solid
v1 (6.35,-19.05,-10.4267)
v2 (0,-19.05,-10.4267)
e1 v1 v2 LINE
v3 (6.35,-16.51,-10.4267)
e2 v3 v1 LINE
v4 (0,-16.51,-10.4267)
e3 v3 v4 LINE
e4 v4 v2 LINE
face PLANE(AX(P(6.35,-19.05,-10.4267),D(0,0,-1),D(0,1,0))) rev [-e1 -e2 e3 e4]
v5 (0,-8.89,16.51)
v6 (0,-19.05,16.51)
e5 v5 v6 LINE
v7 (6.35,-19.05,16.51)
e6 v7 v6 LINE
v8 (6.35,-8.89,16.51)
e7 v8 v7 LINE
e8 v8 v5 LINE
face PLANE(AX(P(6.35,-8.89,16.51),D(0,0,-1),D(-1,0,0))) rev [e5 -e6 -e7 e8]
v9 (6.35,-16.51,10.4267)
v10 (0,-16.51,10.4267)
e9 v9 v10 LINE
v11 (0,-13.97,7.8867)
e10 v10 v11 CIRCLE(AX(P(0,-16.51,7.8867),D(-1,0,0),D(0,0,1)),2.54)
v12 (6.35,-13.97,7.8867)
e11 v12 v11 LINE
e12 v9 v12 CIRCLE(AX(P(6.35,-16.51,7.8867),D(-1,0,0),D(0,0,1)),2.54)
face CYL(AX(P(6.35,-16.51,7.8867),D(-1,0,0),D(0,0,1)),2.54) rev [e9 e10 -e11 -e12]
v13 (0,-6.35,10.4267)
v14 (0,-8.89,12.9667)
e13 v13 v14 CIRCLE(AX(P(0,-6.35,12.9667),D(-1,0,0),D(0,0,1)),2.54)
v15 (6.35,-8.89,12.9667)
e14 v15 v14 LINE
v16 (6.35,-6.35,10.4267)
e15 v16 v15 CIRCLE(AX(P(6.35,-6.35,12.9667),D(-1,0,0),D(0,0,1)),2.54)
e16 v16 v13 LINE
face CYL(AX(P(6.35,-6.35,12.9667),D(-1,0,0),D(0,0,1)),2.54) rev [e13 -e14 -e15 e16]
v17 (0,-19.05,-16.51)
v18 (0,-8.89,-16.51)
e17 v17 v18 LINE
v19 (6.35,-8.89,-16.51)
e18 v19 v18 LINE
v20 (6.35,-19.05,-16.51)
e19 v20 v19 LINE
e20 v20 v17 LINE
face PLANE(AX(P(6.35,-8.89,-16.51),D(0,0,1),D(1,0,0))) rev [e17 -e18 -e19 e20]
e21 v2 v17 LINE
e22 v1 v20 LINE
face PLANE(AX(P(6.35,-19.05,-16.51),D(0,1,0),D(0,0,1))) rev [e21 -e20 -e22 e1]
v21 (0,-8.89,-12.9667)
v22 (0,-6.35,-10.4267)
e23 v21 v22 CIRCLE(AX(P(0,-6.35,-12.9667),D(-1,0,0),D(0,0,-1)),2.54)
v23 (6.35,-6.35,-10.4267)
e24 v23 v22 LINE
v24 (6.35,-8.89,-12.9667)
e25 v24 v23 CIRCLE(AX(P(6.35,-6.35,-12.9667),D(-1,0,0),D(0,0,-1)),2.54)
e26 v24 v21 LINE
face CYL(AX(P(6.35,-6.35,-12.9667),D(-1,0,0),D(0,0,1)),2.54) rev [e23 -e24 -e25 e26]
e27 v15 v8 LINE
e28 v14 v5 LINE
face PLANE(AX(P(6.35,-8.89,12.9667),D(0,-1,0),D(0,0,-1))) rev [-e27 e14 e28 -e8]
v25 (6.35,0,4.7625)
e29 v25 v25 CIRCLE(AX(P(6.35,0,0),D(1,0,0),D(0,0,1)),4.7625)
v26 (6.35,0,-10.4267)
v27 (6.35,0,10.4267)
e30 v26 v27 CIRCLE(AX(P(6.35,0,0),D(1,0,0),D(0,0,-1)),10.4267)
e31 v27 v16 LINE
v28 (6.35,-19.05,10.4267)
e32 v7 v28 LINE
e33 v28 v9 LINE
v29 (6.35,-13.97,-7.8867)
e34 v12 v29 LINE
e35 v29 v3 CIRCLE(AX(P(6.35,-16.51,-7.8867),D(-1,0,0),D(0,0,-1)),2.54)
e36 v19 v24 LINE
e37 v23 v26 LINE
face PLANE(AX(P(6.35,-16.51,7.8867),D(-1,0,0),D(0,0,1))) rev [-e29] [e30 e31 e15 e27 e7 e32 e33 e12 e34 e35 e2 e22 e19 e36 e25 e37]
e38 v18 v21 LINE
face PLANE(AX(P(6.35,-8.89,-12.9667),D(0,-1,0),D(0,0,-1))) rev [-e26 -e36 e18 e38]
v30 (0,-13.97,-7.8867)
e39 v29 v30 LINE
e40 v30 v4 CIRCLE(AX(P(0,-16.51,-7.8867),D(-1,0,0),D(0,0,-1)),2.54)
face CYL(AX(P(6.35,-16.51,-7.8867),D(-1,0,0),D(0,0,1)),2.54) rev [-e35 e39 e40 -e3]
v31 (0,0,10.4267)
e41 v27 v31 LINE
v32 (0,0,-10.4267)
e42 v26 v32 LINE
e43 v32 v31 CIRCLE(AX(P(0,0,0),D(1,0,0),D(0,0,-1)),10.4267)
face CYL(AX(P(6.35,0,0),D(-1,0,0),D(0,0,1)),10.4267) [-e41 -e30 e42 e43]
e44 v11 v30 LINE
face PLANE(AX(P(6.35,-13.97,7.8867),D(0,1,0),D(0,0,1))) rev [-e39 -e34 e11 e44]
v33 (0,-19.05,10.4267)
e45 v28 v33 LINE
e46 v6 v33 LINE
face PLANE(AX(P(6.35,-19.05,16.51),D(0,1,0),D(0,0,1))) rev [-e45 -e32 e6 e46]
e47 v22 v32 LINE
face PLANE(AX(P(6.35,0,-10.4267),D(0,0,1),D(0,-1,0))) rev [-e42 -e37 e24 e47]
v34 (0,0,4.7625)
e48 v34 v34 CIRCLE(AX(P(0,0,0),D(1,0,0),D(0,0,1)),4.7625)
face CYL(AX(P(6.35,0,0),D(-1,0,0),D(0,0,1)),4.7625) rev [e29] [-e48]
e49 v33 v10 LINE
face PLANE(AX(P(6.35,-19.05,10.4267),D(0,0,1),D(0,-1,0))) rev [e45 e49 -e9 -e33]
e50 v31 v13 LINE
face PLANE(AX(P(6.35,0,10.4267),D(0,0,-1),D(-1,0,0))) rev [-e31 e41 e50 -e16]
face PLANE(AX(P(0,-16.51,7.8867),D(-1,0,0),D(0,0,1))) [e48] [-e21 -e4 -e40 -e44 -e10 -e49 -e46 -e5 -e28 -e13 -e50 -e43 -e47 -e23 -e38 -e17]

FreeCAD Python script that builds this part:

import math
import FreeCAD as App
import Part
import Sketcher
from FreeCAD import Vector
Q = App.Units.Quantity

doc = App.newDocument("Part")
body = doc.addObject("PartDesign::Body", "Body")

sketch1 = body.newObject("Sketcher::SketchObject", "Sketch")
sketch1.AttachmentSupport = (doc.getObject("YZ_Plane"), [""])
sketch1.MapMode = "FlatFace"
sketch1.addGeometry(Part.LineSegment(Vector(-19.1, 16.5, 0), Vector(-19.1, 10.4, 0)), False)
sketch1.addGeometry(Part.LineSegment(Vector(-19.1, 10.4, 0), Vector(-16.5, 10.4, 0)), False)
sketch1.addGeometry(Part.ArcOfCircle(Part.Circle(Vector(-16.5, 7.9, 0), Vector(0, 0, 1), 2.5), math.radians(0), math.radians(90)), False)
sketch1.addGeometry(Part.LineSegment(Vector(-14, 7.9, 0), Vector(-14, -7.9, 0)), False)
sketch1.addGeometry(Part.ArcOfCircle(Part.Circle(Vector(-16.5, -7.9, 0), Vector(0, 0, 1), 2.5), math.radians(-90), math.radians(0)), False)
sketch1.addGeometry(Part.LineSegment(Vector(-16.5, -10.4, 0), Vector(-19.1, -10.4, 0)), False)
sketch1.addGeometry(Part.LineSegment(Vector(-19.1, -10.4, 0), Vector(-19.1, -16.5, 0)), False)
sketch1.addGeometry(Part.LineSegment(Vector(-19.1, -16.5, 0), Vector(-8.9, -16.5, 0)), False)
sketch1.addGeometry(Part.LineSegment(Vector(-8.9, -16.5, 0), Vector(-8.9, -13, 0)), False)
sketch1.addGeometry(Part.ArcOfCircle(Part.Circle(Vector(-6.3, -13, 0), Vector(0, 0, 1), 2.5), math.radians(90), math.radians(180)), False)
sketch1.addGeometry(Part.LineSegment(Vector(-6.3, -10.4, 0), Vector(0, -10.4, 0)), False)
sketch1.addGeometry(Part.ArcOfCircle(Part.Circle(Vector(0, 0, 0), Vector(0, 0, 1), 10.4), math.radians(-90), math.radians(90)), False)
sketch1.addGeometry(Part.LineSegment(Vector(0, 10.4, 0), Vector(-6.3, 10.4, 0)), False)
sketch1.addGeometry(Part.ArcOfCircle(Part.Circle(Vector(-6.3, 13, 0), Vector(0, 0, 1), 2.5), math.radians(-180), math.radians(-90)), False)
sketch1.addGeometry(Part.LineSegment(Vector(-8.9, 13, 0), Vector(-8.9, 16.5, 0)), False)
sketch1.addGeometry(Part.LineSegment(Vector(-8.9, 16.5, 0), Vector(-19.1, 16.5, 0)), False)
sketch1.addGeometry(Part.Circle(Vector(0, 0, 0), Vector(0, 0, 1), 4.8), False)
sketch1.addConstraint(Sketcher.Constraint("Coincident", 0, 2, 1, 1))
sketch1.addConstraint(Sketcher.Constraint("Tangent", 1, 2, 2, 2))
sketch1.addConstraint(Sketcher.Constraint("Tangent", 2, 1, 3, 1))
sketch1.addConstraint(Sketcher.Constraint("Tangent", 3, 2, 4, 2))
sketch1.addConstraint(Sketcher.Constraint("Tangent", 4, 1, 5, 1))
sketch1.addConstraint(Sketcher.Constraint("Coincident", 5, 2, 6, 1))
sketch1.addConstraint(Sketcher.Constraint("Coincident", 6, 2, 7, 1))
sketch1.addConstraint(Sketcher.Constraint("Coincident", 7, 2, 8, 1))
sketch1.addConstraint(Sketcher.Constraint("Tangent", 8, 2, 9, 2))
sketch1.addConstraint(Sketcher.Constraint("Tangent", 9, 1, 10, 1))
sketch1.addConstraint(Sketcher.Constraint("Tangent", 10, 2, 11, 1))
sketch1.addConstraint(Sketcher.Constraint("Tangent", 11, 2, 12, 1))
sketch1.addConstraint(Sketcher.Constraint("Tangent", 12, 2, 13, 2))
sketch1.addConstraint(Sketcher.Constraint("Tangent", 13, 1, 14, 1))
sketch1.addConstraint(Sketcher.Constraint("Coincident", 14, 2, 15, 1))
sketch1.addConstraint(Sketcher.Constraint("Coincident", 15, 2, 0, 1))
sketch1.addConstraint(Sketcher.Constraint("Vertical", 0))
sketch1.addConstraint(Sketcher.Constraint("Horizontal", 1))
sketch1.addConstraint(Sketcher.Constraint("Vertical", 3))
sketch1.addConstraint(Sketcher.Constraint("Horizontal", 5))
sketch1.addConstraint(Sketcher.Constraint("Vertical", 6))
sketch1.addConstraint(Sketcher.Constraint("Horizontal", 7))
sketch1.addConstraint(Sketcher.Constraint("Vertical", 8))
sketch1.addConstraint(Sketcher.Constraint("Horizontal", 10))
sketch1.addConstraint(Sketcher.Constraint("Horizontal", 12))
sketch1.addConstraint(Sketcher.Constraint("Vertical", 14))
sketch1.addConstraint(Sketcher.Constraint("Horizontal", 15))
sketch1.addConstraint(Sketcher.Constraint("Coincident", 11, 3, -1, 1))
sketch1.addConstraint(Sketcher.Constraint("Coincident", 16, 3, -1, 1))
sketch1.addConstraint(Sketcher.Constraint("Equal", 2, 4))
sketch1.addConstraint(Sketcher.Constraint("Equal", 4, 9))
sketch1.addConstraint(Sketcher.Constraint("Equal", 9, 13))
sketch1.addConstraint(Sketcher.Constraint("Symmetric", 0, 2, 5, 2, -1))
sketch1.addConstraint(Sketcher.Constraint("Symmetric", 7, 2, 14, 2, -1))
sketch1.addConstraint(Sketcher.Constraint("Horizontal", 5, 2, 9, 1))
sketch1.addConstraint(Sketcher.Constraint("Radius", 2, Q("0.1 in")))
sketch1.addConstraint(Sketcher.Constraint("Diameter", 16, Q("0.375 in")))
sketch1.addConstraint(Sketcher.Constraint("DistanceX", 1, 1, 1, 2, Q("0.1 in")))
sketch1.addConstraint(Sketcher.Constraint("DistanceX", 7, 1, 7, 2, Q("0.4 in")))
sketch1.addConstraint(Sketcher.Constraint("DistanceX", 10, 1, 10, 2, Q("0.25 in")))
sketch1.addConstraint(Sketcher.Constraint("Radius", 11, Q("0.4105 in")))
sketch1.addConstraint(Sketcher.Constraint("DistanceY", 6, 2, -1, 1, Q("0.65 in")))
pad1 = body.newObject("PartDesign::Pad", "Pad")
pad1.Profile = sketch1
pad1.Length = Q("0.25 in")

doc.recompute()
